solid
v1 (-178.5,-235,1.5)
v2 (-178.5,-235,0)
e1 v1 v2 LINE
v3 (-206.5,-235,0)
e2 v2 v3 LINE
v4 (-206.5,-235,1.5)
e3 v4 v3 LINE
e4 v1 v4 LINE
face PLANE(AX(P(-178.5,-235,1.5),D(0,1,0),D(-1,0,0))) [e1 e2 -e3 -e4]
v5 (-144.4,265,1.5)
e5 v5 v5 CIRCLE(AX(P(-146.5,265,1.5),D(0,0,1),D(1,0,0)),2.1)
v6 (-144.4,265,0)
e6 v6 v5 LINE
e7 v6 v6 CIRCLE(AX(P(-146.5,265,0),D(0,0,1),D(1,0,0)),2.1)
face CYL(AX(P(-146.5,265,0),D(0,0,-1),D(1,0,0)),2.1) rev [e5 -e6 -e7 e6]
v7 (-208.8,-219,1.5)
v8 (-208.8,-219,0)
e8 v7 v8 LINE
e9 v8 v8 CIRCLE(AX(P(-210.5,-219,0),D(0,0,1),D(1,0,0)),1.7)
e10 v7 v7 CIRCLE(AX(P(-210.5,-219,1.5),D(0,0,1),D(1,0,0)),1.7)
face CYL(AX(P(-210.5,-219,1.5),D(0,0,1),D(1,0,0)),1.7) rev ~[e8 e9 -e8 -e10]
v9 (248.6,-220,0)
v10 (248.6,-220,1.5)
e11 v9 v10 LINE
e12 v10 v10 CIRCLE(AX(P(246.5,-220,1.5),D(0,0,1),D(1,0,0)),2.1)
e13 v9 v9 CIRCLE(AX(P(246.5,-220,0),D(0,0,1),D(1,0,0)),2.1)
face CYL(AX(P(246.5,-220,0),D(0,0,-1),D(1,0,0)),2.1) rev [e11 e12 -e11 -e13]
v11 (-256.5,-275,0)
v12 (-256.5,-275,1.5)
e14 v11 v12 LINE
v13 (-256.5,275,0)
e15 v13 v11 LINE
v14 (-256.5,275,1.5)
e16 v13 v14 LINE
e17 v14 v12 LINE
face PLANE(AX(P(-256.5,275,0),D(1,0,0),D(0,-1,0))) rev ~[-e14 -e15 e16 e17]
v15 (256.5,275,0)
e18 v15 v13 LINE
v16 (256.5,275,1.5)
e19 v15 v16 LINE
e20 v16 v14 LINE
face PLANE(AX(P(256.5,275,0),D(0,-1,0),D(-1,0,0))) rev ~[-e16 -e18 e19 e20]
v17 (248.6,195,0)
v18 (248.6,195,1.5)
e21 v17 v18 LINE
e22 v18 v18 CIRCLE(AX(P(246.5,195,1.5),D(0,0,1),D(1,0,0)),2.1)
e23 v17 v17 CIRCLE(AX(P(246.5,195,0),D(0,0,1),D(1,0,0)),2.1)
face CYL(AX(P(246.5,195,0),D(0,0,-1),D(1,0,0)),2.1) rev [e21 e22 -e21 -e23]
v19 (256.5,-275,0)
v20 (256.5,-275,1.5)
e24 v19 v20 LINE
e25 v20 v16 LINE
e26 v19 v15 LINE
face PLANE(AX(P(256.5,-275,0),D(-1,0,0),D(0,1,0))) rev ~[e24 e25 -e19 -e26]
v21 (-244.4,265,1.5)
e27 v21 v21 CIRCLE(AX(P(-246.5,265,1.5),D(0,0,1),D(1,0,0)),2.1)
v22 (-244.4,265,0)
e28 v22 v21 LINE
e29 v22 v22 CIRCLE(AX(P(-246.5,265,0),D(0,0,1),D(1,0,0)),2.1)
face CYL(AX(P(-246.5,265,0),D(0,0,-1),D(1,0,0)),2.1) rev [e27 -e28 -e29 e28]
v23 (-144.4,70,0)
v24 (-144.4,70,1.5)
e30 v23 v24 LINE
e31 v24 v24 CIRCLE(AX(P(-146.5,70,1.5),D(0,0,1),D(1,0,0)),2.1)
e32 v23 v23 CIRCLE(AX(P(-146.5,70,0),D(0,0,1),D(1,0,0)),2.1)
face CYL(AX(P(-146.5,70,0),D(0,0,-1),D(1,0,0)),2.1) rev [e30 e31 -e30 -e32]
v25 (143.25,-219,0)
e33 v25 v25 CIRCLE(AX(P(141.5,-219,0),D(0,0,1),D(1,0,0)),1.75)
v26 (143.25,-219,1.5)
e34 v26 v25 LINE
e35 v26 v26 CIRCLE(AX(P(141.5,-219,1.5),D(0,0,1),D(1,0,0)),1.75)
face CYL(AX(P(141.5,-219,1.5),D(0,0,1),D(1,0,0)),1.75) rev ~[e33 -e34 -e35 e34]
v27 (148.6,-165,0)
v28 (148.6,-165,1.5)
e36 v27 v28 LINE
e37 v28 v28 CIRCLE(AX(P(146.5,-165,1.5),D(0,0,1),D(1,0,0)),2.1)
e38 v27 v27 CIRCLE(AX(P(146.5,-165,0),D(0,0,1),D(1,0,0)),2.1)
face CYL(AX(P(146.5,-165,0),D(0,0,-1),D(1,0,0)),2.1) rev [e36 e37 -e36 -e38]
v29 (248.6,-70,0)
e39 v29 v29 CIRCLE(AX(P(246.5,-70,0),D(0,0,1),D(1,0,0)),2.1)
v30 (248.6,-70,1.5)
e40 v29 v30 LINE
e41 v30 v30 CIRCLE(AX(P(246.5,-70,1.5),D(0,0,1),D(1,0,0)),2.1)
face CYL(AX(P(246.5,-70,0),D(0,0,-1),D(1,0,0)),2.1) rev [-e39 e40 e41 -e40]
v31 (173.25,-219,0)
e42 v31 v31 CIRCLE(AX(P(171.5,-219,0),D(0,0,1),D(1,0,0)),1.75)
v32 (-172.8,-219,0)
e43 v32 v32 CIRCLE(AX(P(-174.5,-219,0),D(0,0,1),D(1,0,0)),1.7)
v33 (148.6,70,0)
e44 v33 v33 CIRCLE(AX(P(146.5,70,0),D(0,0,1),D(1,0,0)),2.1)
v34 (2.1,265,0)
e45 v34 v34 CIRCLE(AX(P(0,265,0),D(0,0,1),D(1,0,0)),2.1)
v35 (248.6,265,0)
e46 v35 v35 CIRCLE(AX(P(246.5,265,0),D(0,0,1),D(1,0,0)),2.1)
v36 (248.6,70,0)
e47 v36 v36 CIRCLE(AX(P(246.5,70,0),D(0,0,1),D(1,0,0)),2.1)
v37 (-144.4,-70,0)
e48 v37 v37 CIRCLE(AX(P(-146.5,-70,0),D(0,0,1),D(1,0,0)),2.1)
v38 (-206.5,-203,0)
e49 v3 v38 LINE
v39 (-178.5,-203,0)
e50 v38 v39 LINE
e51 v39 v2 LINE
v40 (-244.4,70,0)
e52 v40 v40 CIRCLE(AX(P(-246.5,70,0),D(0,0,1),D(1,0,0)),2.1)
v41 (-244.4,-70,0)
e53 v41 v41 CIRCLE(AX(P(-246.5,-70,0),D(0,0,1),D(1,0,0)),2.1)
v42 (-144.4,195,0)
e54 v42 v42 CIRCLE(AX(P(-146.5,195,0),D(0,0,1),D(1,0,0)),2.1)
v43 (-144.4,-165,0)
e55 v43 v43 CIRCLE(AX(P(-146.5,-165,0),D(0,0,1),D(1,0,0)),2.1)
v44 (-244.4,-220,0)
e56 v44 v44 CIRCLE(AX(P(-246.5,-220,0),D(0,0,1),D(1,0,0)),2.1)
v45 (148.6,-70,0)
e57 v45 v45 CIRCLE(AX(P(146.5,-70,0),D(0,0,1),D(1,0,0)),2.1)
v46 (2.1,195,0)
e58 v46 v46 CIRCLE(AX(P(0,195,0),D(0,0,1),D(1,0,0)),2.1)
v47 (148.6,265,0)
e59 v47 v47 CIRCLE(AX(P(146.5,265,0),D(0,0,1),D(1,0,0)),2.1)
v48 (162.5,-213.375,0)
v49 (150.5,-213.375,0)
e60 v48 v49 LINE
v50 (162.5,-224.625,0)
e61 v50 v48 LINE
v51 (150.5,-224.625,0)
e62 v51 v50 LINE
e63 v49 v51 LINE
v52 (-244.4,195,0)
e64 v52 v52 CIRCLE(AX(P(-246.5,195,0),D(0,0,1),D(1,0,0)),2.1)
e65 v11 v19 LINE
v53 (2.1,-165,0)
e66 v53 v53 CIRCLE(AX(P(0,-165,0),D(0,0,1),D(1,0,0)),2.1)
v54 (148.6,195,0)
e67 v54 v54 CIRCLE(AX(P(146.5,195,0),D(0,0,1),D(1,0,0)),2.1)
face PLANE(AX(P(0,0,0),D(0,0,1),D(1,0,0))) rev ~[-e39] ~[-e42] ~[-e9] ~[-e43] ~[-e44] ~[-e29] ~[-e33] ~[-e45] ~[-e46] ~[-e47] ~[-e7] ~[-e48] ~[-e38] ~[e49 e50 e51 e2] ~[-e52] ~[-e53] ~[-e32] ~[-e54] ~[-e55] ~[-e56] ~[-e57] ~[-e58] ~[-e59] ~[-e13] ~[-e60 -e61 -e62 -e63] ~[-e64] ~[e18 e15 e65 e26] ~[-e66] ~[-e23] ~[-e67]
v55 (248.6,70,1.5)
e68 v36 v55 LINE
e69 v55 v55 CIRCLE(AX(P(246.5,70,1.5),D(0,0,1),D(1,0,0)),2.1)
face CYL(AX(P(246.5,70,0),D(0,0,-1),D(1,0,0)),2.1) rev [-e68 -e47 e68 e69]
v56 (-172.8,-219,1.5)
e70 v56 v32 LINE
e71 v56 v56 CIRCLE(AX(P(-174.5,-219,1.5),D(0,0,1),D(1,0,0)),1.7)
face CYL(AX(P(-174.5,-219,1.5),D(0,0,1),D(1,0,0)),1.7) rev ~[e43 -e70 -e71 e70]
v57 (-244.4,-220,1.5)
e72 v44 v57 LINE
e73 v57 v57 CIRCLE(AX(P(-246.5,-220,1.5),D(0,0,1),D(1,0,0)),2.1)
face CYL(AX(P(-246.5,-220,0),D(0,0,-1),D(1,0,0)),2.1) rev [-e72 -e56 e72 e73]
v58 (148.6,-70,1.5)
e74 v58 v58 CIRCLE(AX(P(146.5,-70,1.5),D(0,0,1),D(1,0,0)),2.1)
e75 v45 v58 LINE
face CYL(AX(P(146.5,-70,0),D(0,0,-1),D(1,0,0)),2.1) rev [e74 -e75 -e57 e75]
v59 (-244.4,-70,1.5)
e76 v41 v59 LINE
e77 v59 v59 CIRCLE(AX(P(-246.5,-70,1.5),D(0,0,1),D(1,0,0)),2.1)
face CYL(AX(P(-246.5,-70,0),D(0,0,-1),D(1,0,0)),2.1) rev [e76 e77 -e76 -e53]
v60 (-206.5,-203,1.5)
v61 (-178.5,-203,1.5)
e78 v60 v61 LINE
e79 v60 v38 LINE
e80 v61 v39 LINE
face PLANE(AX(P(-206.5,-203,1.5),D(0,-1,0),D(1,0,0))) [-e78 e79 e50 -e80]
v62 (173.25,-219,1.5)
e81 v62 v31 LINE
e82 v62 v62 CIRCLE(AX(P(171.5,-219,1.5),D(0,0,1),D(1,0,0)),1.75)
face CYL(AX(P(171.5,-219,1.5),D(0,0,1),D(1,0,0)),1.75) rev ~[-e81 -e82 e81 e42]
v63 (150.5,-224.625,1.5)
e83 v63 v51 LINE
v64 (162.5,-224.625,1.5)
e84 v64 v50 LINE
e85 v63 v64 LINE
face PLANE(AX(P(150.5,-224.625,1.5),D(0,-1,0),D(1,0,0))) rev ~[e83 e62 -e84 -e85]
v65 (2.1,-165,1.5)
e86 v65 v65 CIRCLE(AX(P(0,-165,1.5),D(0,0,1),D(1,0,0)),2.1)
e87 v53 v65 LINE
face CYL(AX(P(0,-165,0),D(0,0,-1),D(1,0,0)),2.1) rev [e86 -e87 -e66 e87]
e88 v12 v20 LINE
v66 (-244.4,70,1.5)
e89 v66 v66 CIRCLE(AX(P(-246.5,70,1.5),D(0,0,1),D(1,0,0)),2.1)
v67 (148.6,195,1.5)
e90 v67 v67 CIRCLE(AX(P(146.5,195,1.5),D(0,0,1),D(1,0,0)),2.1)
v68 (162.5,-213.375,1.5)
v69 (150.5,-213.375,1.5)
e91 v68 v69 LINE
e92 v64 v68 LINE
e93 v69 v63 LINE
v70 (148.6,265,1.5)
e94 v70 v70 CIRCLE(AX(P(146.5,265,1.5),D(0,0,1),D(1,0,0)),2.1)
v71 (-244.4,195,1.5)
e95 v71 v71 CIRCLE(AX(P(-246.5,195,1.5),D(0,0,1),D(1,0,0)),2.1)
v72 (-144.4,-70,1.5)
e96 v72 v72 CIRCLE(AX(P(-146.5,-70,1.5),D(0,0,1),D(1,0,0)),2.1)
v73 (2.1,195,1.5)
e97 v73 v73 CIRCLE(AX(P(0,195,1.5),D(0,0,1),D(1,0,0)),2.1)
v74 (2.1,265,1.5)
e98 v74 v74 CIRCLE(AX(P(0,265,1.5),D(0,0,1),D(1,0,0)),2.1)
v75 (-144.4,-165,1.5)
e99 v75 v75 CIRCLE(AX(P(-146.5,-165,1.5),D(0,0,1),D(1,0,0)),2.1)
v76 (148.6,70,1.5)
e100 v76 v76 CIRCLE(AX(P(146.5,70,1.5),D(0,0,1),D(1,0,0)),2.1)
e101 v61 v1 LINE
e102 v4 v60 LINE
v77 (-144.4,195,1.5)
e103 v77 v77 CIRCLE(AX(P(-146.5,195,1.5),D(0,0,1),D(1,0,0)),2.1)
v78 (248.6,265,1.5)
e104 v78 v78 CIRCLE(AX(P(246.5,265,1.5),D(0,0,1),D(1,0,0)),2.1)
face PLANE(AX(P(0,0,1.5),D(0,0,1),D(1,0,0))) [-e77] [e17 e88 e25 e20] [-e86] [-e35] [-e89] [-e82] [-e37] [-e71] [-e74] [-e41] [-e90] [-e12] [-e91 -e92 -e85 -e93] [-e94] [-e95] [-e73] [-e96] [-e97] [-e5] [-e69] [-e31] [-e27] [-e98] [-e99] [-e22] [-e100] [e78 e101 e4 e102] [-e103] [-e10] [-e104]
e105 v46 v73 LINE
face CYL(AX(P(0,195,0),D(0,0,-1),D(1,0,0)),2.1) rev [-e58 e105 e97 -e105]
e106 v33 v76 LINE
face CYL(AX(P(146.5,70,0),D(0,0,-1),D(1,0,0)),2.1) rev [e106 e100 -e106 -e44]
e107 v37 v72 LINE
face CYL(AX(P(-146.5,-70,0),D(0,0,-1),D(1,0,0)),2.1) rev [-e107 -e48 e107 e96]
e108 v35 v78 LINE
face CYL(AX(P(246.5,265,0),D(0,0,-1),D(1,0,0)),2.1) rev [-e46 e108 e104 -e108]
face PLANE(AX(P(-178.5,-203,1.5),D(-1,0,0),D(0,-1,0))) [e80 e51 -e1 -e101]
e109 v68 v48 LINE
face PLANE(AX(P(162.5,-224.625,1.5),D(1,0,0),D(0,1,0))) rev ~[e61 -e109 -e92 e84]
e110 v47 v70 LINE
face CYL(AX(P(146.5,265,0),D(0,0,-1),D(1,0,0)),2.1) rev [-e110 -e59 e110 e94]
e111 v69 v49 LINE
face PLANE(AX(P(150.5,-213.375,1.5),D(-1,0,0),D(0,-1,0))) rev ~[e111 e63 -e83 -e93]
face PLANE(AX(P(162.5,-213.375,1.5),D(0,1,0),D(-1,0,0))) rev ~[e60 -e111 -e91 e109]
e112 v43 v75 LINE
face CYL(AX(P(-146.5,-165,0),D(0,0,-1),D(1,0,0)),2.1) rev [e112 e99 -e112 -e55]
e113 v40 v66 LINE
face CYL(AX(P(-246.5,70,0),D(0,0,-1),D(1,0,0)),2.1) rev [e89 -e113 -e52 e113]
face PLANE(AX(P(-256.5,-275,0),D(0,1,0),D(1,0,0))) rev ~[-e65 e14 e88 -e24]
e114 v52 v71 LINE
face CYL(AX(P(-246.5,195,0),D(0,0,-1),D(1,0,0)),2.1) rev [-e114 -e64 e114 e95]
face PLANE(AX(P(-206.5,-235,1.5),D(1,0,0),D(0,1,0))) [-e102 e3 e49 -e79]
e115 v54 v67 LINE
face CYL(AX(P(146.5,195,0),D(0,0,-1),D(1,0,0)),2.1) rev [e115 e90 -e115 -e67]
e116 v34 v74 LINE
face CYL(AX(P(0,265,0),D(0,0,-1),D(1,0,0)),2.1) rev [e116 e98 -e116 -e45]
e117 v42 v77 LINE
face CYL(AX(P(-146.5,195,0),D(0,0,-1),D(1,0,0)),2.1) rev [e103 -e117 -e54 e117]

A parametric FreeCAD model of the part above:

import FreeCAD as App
import Part
import Sketcher

doc = App.newDocument("Part")
body = doc.addObject("PartDesign::Body", "Body")

sketch1 = body.newObject("Sketcher::SketchObject", "Sketch")
sketch1.AttachmentSupport = (doc.getObject("XY_Plane"), [""])
sketch1.MapMode = "FlatFace"
sketch1.addGeometry([
    Part.LineSegment(App.Vector(-256.5, 275, 0), App.Vector(-256.5, -275, 0)),
    Part.LineSegment(App.Vector(-256.5, -275, 0), App.Vector(256.5, -275, 0)),
    Part.LineSegment(App.Vector(256.5, -275, 0), App.Vector(256.5, 275, 0)),
    Part.LineSegment(App.Vector(256.5, 275, 0), App.Vector(-256.5, 275, 0)),
    Part.Circle(App.Vector(-246.5, -220, 0), App.Vector(0, 0, 1), 2.1),
    Part.Circle(App.Vector(-146.5, -165, 0), App.Vector(0, 0, 1), 2.1),
    Part.Circle(App.Vector(-246.5, -70, 0), App.Vector(0, 0, 1), 2.1),
    Part.Circle(App.Vector(-146.5, -70, 0), App.Vector(0, 0, 1), 2.1),
    Part.Circle(App.Vector(0, -165, 0), App.Vector(0, 0, 1), 2.1),
    Part.Circle(App.Vector(246.5, -220, 0), App.Vector(0, 0, 1), 2.1),
    Part.Circle(App.Vector(146.5, -165, 0), App.Vector(0, 0, 1), 2.1),
    Part.Circle(App.Vector(146.5, -70, 0), App.Vector(0, 0, 1), 2.1),
    Part.Circle(App.Vector(246.5, -70, 0), App.Vector(0, 0, 1), 2.1),
    Part.Circle(App.Vector(-246.5, 70, 0), App.Vector(0, 0, 1), 2.1),
    Part.Circle(App.Vector(-146.5, 70, 0), App.Vector(0, 0, 1), 2.1),
    Part.Circle(App.Vector(-246.5, 195, 0), App.Vector(0, 0, 1), 2.1),
    Part.Circle(App.Vector(-146.5, 195, 0), App.Vector(0, 0, 1), 2.1),
    Part.Circle(App.Vector(-246.5, 265, 0), App.Vector(0, 0, 1), 2.1),
    Part.Circle(App.Vector(-146.5, 265, 0), App.Vector(0, 0, 1), 2.1),
    Part.Circle(App.Vector(146.5, 70, 0), App.Vector(0, 0, 1), 2.1),
    Part.Circle(App.Vector(246.5, 70, 0), App.Vector(0, 0, 1), 2.1),
    Part.Circle(App.Vector(0, 195, 0), App.Vector(0, 0, 1), 2.1),
    Part.Circle(App.Vector(0, 265, 0), App.Vector(0, 0, 1), 2.1),
    Part.Circle(App.Vector(146.5, 195, 0), App.Vector(0, 0, 1), 2.1),
    Part.Circle(App.Vector(246.5, 195, 0), App.Vector(0, 0, 1), 2.1),
    Part.Circle(App.Vector(146.5, 265, 0), App.Vector(0, 0, 1), 2.1),
    Part.Circle(App.Vector(246.5, 265, 0), App.Vector(0, 0, 1), 2.1),
], False)
sketch1.addConstraint([
    Sketcher.Constraint("Coincident", 0, 2, 1, 1),
    Sketcher.Constraint("Coincident", 1, 2, 2, 1),
    Sketcher.Constraint("Coincident", 2, 2, 3, 1),
    Sketcher.Constraint("Coincident", 3, 2, 0, 1),
    Sketcher.Constraint("Vertical", 0),
    Sketcher.Constraint("Horizontal", 1),
    Sketcher.Constraint("Vertical", 2),
    Sketcher.Constraint("Horizontal", 3),
    Sketcher.Constraint("Equal", 4, 5),
    Sketcher.Constraint("Equal", 5, 6),
    Sketcher.Constraint("Equal", 6, 7),
    Sketcher.Constraint("Equal", 7, 8),
    Sketcher.Constraint("Equal", 8, 9),
    Sketcher.Constraint("Equal", 9, 10),
    Sketcher.Constraint("Equal", 10, 11),
    Sketcher.Constraint("Equal", 11, 12),
    Sketcher.Constraint("Equal", 12, 13),
    Sketcher.Constraint("Equal", 13, 14),
    Sketcher.Constraint("Equal", 14, 15),
    Sketcher.Constraint("Equal", 15, 16),
    Sketcher.Constraint("Equal", 16, 17),
    Sketcher.Constraint("Equal", 17, 18),
    Sketcher.Constraint("Equal", 18, 19),
    Sketcher.Constraint("Equal", 19, 20),
    Sketcher.Constraint("Equal", 20, 21),
    Sketcher.Constraint("Equal", 21, 22),
    Sketcher.Constraint("Equal", 22, 23),
    Sketcher.Constraint("Equal", 23, 24),
    Sketcher.Constraint("Equal", 24, 25),
    Sketcher.Constraint("Equal", 25, 26),
    Sketcher.Constraint("Symmetric", 12, 3, 13, 3, -1, 1),
    Sketcher.Constraint("Symmetric", 11, 3, 14, 3, -1, 1),
    Sketcher.Constraint("Symmetric", 7, 3, 19, 3, -1, 1),
    Sketcher.Constraint("Symmetric", 6, 3, 20, 3, -1, 1),
    Sketcher.Constraint("Symmetric", 0, 2, 2, 2, -1, 1),
    Sketcher.Constraint("Symmetric", 4, 3, 9, 3, -2),
    Sketcher.Constraint("Symmetric", 5, 3, 10, 3, -2),
    Sketcher.Constraint("Symmetric", 7, 3, 11, 3, -2),
    Sketcher.Constraint("Symmetric", 6, 3, 12, 3, -2),
    Sketcher.Constraint("Symmetric", 16, 3, 23, 3, -2),
    Sketcher.Constraint("Symmetric", 15, 3, 24, 3, -2),
    Sketcher.Constraint("Symmetric", 18, 3, 25, 3, -2),
    Sketcher.Constraint("Symmetric", 17, 3, 26, 3, -2),
    Sketcher.Constraint("PointOnObject", 8, 3, -2),
    Sketcher.Constraint("PointOnObject", 21, 3, -2),
    Sketcher.Constraint("PointOnObject", 22, 3, -2),
    Sketcher.Constraint("Horizontal", 6, 3, 7, 3),
    Sketcher.Constraint("Horizontal", 5, 3, 8, 3),
    Sketcher.Constraint("Horizontal", 15, 3, 16, 3),
    Sketcher.Constraint("Horizontal", 17, 3, 18, 3),
    Sketcher.Constraint("Horizontal", 16, 3, 21, 3),
    Sketcher.Constraint("Horizontal", 18, 3, 22, 3),
    Sketcher.Constraint("Vertical", 4, 3, 6, 3),
    Sketcher.Constraint("Vertical", 5, 3, 7, 3),
    Sketcher.Constraint("Vertical", 13, 3, 15, 3),
    Sketcher.Constraint("Vertical", 14, 3, 16, 3),
    Sketcher.Constraint("Vertical", 15, 3, 17, 3),
    Sketcher.Constraint("Vertical", 16, 3, 18, 3),
    Sketcher.Constraint("Diameter", 4, 4.2),
    Sketcher.Constraint("DistanceX", 1, 1, 1, 2, 513.0),
    Sketcher.Constraint("DistanceY", 0, 2, 0, 1, 550.0),
    Sketcher.Constraint("DistanceY", 6, 3, -1, 1, 70.0),
    Sketcher.Constraint("DistanceY", 4, 3, 5, 3, 55.0),
    Sketcher.Constraint("DistanceY", 15, 3, 17, 3, 70.0),
    Sketcher.Constraint("DistanceX", 0, 2, 4, 3, 10.0),
    Sketcher.Constraint("DistanceY", 0, 2, 4, 3, 55.0),
    Sketcher.Constraint("DistanceX", 0, 2, 5, 3, 110.0),
    Sketcher.Constraint("DistanceY", 26, 3, 2, 2, 10.0),
])
pad1 = body.newObject("PartDesign::Pad", "Pad")
pad1.Profile = sketch1
pad1.Length = 1.5

sketch2 = body.newObject("Sketcher::SketchObject", "Sketch001")
sketch2.AttachmentSupport = (doc.getObject("XY_Plane"), [""])
sketch2.MapMode = "FlatFace"
sketch2.AttachmentOffset = App.Placement(App.Vector(0, 0, 1.5), App.Rotation())
sketch2.addGeometry([
    Part.LineSegment(App.Vector(-178.5, -203, 0), App.Vector(-206.5, -203, 0)),
    Part.LineSegment(App.Vector(-206.5, -203, 0), App.Vector(-206.5, -235, 0)),
    Part.LineSegment(App.Vector(-206.5, -235, 0), App.Vector(-178.5, -235, 0)),
    Part.LineSegment(App.Vector(-178.5, -235, 0), App.Vector(-178.5, -203, 0)),
    Part.Circle(App.Vector(-210.5, -219, 0), App.Vector(0, 0, 1), 1.7),
    Part.Circle(App.Vector(-174.5, -219, 0), App.Vector(0, 0, 1), 1.7),
], False)
sketch2.addConstraint([
    Sketcher.Constraint("Coincident", 0, 2, 1, 1),
    Sketcher.Constraint("Coincident", 1, 2, 2, 1),
    Sketcher.Constraint("Coincident", 2, 2, 3, 1),
    Sketcher.Constraint("Coincident", 3, 2, 0, 1),
    Sketcher.Constraint("Horizontal", 0),
    Sketcher.Constraint("Vertical", 1),
    Sketcher.Constraint("Horizontal", 2),
    Sketcher.Constraint("Vertical", 3),
    Sketcher.Constraint("Equal", 4, 5),
    Sketcher.Constraint("Horizontal", 4, 3, 5, 3),
    Sketcher.Constraint("Diameter", 4, 3.4),
    Sketcher.Constraint("DistanceX", 0, 2, 0, 1, 28.0),
    Sketcher.Constraint("DistanceY", 1, 2, 1, 1, 32.0),
    Sketcher.Constraint("DistanceX", 4, 3, 5, 3, 36.0),
    Sketcher.Constraint("DistanceX", 0, 2, 5, 3, 32.0),
    Sketcher.Constraint("DistanceY", 4, 3, -1, 1, 219.0),
    Sketcher.Constraint("DistanceY", 0, 2, -1, 1, 203.0),
    Sketcher.Constraint("DistanceX", 4, 3, -1, 1, 210.5),
])
pocket1 = body.newObject("PartDesign::Pocket", "Pocket")
pocket1.Profile = sketch2
pocket1.Length = 1.5

sketch3 = body.newObject("Sketcher::SketchObject", "Sketch002")
sketch3.AttachmentSupport = (doc.getObject("XY_Plane"), [""])
sketch3.MapMode = "FlatFace"
sketch3.AttachmentOffset = App.Placement(App.Vector(0, 0, 1.5), App.Rotation())
sketch3.addGeometry([
    Part.LineSegment(App.Vector(150.5, -213.4, 0), App.Vector(150.5, -224.6, 0)),
    Part.LineSegment(App.Vector(150.5, -224.6, 0), App.Vector(162.5, -224.6, 0)),
    Part.LineSegment(App.Vector(162.5, -224.6, 0), App.Vector(162.5, -213.4, 0)),
    Part.LineSegment(App.Vector(162.5, -213.4, 0), App.Vector(150.5, -213.4, 0)),
    Part.Circle(App.Vector(141.5, -219, 0), App.Vector(0, 0, 1), 1.8),
    Part.Circle(App.Vector(171.5, -219, 0), App.Vector(0, 0, 1), 1.8),
], False)
sketch3.addConstraint([
    Sketcher.Constraint("Coincident", 0, 2, 1, 1),
    Sketcher.Constraint("Coincident", 1, 2, 2, 1),
    Sketcher.Constraint("Coincident", 2, 2, 3, 1),
    Sketcher.Constraint("Coincident", 3, 2, 0, 1),
    Sketcher.Constraint("Vertical", 0),
    Sketcher.Constraint("Horizontal", 1),
    Sketcher.Constraint("Vertical", 2),
    Sketcher.Constraint("Horizontal", 3),
    Sketcher.Constraint("Equal", 4, 5),
    Sketcher.Constraint("Horizontal", 4, 3, 5, 3),
    Sketcher.Constraint("Diameter", 4, 3.5),
    Sketcher.Constraint("DistanceX", 1, 1, 1, 2, 12.0),
    Sketcher.Constraint("DistanceX", 4, 3, 5, 3, 30.0),
    Sketcher.Constraint("DistanceY", 0, 2, 0, 1, 11.25),
    Sketcher.Constraint("DistanceY", 4, 3, -1, 1, 219.0),
    Sketcher.Constraint("DistanceX", 4, 3, 0, 2, 9.0),
    Sketcher.Constraint("DistanceX", -1, 1, 4, 3, 141.5),
    Sketcher.Constraint("DistanceY", 0, 2, -1, 1, 224.625),
])
pocket2 = body.newObject("PartDesign::Pocket", "Pocket001")
pocket2.Profile = sketch3
pocket2.Length = 1.5

doc.recompute()
